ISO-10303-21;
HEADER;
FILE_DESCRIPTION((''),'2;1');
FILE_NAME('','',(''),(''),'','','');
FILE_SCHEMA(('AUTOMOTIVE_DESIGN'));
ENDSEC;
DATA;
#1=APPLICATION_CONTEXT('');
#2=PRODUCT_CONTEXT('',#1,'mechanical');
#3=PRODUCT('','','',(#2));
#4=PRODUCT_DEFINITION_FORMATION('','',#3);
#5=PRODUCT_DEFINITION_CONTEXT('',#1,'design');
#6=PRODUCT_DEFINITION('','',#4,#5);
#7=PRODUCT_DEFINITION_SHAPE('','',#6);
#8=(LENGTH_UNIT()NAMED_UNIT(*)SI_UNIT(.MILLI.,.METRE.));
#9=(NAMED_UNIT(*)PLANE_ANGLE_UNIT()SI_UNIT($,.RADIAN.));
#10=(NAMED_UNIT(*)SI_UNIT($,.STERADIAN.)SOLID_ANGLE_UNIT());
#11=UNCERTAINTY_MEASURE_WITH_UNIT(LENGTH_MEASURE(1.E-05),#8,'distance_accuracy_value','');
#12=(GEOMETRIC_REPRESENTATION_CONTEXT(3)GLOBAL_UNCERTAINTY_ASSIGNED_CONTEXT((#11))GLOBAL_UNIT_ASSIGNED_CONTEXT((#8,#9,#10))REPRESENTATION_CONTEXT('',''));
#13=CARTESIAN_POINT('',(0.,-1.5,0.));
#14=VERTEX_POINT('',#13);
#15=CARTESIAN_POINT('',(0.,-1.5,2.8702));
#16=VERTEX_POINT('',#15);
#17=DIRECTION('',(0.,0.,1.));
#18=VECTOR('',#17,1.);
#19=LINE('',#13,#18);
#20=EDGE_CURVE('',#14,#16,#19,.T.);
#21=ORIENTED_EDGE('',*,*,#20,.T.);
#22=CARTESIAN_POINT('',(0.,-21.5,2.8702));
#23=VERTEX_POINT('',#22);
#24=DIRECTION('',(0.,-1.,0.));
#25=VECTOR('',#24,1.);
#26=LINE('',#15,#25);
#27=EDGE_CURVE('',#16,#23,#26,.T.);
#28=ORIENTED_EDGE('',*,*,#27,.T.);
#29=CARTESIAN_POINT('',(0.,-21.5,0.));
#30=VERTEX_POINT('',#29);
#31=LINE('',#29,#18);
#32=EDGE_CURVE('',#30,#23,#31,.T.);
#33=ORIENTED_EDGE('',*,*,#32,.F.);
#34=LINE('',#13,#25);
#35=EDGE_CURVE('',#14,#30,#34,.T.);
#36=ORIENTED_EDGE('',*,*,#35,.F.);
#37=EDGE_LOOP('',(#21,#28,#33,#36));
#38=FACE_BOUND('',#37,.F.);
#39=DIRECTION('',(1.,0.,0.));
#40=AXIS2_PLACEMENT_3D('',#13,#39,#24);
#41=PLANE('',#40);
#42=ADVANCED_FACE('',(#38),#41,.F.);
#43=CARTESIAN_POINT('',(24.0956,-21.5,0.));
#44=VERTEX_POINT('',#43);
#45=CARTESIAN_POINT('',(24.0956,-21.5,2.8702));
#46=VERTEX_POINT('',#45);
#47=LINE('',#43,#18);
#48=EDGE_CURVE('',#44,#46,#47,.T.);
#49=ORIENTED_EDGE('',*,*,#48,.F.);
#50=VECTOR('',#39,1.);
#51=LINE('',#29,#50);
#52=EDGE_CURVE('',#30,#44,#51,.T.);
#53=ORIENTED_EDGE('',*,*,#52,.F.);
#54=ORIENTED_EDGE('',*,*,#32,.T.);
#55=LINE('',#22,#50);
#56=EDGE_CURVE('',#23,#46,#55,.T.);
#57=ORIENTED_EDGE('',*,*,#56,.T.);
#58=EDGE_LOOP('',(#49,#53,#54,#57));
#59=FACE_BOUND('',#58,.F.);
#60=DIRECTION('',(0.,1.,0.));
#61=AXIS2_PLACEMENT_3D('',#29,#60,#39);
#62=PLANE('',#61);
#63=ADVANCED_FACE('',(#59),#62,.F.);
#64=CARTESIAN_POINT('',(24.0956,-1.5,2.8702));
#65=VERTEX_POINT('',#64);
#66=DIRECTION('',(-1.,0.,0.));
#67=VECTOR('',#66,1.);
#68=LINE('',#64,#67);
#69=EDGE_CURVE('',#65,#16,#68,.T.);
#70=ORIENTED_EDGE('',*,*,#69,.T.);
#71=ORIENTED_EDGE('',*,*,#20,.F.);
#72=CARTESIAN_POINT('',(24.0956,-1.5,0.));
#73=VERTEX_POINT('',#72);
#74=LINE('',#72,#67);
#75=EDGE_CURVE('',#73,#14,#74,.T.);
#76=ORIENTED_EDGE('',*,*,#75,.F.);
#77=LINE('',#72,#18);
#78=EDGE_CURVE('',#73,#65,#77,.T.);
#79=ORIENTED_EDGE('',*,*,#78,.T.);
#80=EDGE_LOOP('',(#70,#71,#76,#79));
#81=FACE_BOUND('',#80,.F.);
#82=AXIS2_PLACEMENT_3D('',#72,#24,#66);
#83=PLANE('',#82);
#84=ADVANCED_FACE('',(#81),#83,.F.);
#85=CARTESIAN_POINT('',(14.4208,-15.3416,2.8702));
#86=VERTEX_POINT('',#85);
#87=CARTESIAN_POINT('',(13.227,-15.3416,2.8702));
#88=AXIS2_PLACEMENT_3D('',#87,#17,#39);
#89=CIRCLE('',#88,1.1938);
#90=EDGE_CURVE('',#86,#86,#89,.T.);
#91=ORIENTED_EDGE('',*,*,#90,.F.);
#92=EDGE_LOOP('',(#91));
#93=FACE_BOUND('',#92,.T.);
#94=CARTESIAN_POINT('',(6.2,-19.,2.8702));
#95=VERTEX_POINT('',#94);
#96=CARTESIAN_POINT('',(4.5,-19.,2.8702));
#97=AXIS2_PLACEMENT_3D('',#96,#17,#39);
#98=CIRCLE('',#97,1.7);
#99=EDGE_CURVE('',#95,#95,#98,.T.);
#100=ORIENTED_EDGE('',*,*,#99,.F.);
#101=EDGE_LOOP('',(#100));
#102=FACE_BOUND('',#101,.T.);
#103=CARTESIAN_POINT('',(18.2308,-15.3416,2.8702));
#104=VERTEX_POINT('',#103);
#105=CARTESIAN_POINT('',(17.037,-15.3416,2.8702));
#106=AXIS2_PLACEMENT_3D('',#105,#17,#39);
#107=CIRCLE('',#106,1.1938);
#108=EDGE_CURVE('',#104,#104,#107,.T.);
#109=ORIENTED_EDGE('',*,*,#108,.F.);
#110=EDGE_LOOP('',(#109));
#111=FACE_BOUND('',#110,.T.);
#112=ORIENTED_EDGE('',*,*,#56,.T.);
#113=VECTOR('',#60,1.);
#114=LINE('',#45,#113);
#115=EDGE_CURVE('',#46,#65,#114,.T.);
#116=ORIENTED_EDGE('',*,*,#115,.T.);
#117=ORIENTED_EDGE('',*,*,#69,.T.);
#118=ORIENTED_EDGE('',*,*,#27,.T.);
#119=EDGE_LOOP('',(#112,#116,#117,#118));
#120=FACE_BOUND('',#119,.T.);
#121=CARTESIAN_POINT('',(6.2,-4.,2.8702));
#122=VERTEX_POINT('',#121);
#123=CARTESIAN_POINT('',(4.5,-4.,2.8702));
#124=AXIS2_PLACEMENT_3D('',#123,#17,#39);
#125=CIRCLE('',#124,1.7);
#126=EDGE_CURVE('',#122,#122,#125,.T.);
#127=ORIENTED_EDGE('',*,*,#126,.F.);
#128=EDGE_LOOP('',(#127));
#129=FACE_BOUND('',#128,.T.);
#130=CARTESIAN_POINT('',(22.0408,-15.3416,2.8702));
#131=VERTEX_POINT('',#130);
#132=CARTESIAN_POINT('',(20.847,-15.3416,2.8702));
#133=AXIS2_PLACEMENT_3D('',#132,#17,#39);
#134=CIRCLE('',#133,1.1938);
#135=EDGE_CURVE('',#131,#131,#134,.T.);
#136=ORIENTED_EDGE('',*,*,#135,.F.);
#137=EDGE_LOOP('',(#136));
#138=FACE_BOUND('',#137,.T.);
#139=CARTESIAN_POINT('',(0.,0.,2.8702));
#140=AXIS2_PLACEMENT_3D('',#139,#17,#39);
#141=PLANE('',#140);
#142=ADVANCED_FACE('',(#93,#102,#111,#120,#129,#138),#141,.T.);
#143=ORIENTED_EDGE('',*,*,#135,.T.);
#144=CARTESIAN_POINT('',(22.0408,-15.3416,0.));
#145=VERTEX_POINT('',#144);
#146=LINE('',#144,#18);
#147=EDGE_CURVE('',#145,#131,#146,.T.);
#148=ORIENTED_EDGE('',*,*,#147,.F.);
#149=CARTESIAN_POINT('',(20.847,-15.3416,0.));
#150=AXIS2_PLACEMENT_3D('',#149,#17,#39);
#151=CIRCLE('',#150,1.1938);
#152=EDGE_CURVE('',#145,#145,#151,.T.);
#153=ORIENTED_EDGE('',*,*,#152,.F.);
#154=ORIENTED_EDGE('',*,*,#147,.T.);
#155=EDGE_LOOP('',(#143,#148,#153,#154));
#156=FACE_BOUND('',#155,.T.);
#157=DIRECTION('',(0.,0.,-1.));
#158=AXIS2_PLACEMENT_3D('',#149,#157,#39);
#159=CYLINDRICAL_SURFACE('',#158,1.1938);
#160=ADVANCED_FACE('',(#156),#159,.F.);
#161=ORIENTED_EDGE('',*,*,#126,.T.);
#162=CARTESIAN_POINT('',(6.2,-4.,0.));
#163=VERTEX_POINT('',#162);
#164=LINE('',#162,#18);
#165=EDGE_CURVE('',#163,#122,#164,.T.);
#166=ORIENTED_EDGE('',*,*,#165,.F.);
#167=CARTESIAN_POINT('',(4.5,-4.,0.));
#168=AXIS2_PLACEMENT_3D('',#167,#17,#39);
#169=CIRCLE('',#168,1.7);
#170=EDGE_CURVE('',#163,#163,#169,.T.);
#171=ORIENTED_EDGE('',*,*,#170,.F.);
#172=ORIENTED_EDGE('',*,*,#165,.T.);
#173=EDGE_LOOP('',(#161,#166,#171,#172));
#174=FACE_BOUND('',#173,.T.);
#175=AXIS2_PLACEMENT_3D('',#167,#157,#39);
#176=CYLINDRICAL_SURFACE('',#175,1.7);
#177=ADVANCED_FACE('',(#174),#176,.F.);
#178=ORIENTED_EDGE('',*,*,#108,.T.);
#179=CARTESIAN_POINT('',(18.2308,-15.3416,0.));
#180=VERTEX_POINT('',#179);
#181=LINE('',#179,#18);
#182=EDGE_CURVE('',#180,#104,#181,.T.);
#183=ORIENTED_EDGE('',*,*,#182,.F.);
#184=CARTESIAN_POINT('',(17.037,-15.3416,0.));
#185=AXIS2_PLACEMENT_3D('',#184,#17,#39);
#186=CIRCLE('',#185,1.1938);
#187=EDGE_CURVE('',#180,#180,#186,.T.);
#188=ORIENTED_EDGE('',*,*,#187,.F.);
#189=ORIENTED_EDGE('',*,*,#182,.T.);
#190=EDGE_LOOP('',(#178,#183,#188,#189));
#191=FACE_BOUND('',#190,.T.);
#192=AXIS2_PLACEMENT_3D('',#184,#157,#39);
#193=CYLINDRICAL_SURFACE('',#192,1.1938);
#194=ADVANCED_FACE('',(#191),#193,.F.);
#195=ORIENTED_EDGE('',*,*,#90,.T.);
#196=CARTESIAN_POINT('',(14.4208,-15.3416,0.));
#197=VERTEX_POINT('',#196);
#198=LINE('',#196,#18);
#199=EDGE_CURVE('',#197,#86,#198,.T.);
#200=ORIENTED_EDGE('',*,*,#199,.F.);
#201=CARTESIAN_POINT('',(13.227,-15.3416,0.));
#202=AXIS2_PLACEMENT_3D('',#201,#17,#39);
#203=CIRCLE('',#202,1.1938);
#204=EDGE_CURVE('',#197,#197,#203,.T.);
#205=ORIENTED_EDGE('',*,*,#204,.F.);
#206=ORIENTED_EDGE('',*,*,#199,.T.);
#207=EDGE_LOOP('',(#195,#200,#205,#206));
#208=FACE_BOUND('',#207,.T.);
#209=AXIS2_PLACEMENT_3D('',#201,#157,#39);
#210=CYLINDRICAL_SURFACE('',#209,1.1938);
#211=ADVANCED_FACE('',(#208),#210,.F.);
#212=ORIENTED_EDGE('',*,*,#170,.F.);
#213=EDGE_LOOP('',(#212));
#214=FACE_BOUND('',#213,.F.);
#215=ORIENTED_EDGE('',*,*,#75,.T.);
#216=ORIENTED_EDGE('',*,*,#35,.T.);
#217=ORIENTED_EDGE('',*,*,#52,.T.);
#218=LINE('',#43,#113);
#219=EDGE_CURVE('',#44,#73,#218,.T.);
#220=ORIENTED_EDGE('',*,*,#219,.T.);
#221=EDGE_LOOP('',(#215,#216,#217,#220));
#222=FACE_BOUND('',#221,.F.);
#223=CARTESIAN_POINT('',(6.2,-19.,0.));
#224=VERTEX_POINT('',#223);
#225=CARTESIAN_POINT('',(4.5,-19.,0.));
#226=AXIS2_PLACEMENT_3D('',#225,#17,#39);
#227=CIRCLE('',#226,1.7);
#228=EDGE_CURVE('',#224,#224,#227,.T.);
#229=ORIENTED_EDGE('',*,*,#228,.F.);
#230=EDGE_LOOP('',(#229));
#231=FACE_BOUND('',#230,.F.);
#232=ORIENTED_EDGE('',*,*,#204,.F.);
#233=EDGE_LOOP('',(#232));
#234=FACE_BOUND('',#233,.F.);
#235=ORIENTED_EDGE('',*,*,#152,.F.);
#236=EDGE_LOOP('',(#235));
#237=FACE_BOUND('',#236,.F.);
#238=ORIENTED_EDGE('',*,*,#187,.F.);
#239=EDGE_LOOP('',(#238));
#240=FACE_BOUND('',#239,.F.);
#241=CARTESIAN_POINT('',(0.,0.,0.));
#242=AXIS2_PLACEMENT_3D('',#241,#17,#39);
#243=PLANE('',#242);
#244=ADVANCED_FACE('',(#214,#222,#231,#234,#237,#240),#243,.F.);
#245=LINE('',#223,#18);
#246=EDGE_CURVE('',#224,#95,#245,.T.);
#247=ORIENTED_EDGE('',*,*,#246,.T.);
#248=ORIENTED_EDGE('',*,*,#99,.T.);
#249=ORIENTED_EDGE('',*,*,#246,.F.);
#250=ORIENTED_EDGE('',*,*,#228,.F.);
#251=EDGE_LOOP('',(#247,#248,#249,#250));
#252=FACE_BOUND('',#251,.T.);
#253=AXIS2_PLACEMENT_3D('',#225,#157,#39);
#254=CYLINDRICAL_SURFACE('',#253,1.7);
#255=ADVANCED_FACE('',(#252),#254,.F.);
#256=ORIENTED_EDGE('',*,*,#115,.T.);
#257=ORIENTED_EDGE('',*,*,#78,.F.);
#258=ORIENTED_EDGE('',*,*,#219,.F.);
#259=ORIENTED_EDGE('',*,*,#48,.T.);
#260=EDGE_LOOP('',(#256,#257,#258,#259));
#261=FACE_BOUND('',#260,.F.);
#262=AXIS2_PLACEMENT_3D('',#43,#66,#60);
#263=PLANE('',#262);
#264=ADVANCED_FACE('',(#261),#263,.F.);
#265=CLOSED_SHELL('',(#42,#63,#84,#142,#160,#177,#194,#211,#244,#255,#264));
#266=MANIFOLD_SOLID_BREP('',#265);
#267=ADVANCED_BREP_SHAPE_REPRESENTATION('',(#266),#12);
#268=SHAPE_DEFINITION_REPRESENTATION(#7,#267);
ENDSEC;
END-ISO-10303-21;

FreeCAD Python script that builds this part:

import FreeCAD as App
import Part
import Sketcher
Q = App.Units.Quantity

doc = App.newDocument("Part")
body = doc.addObject("PartDesign::Body", "Body")

sketch1 = body.newObject("Sketcher::SketchObject", "Sketch")
sketch1.AttachmentSupport = (doc.getObject("XY_Plane"), [""])
sketch1.MapMode = "FlatFace"
sketch1.addGeometry([
    Part.LineSegment(App.Vector(0, -1.5, 0), App.Vector(0, -21.5, 0)),
    Part.LineSegment(App.Vector(0, -21.5, 0), App.Vector(24.0956, -21.5, 0)),
    Part.LineSegment(App.Vector(24.0956, -21.5, 0), App.Vector(24.0956, -1.5, 0)),
    Part.LineSegment(App.Vector(24.0956, -1.5, 0), App.Vector(0, -1.5, 0)),
    Part.Circle(App.Vector(4.5, -19, 0), App.Vector(0, 0, 1), 1.7),
    Part.Circle(App.Vector(13.227, -15.3416, 0), App.Vector(0, 0, 1), 1.1938),
    Part.Circle(App.Vector(17.037, -15.3416, 0), App.Vector(0, 0, 1), 1.1938),
    Part.Circle(App.Vector(20.847, -15.3416, 0), App.Vector(0, 0, 1), 1.1938),
    Part.Circle(App.Vector(4.5, -4, 0), App.Vector(0, 0, 1), 1.7),
], False)
sketch1.addConstraint([
    Sketcher.Constraint("Coincident", 0, 2, 1, 1),
    Sketcher.Constraint("Coincident", 1, 2, 2, 1),
    Sketcher.Constraint("Coincident", 2, 2, 3, 1),
    Sketcher.Constraint("Coincident", 3, 2, 0, 1),
    Sketcher.Constraint("Vertical", 0),
    Sketcher.Constraint("Horizontal", 1),
    Sketcher.Constraint("Vertical", 2),
    Sketcher.Constraint("Horizontal", 3),
    Sketcher.Constraint("Equal", 5, 6),
    Sketcher.Constraint("Equal", 6, 7),
    Sketcher.Constraint("Equal", 4, 8),
    Sketcher.Constraint("PointOnObject", 0, 2, -2),
    Sketcher.Constraint("Horizontal", 5, 3, 6, 3),
    Sketcher.Constraint("Horizontal", 6, 3, 7, 3),
    Sketcher.Constraint("Vertical", 4, 3, 8, 3),
    Sketcher.Constraint("Diameter", 4, 3.4),
    Sketcher.Constraint("DistanceX", 5, 3, 6, 3, Q("0.15 in")),
    Sketcher.Constraint("DistanceX", 6, 3, 7, 3, Q("0.15 in")),
    Sketcher.Constraint("Diameter", 5, Q("0.094 in")),
    Sketcher.Constraint("DistanceY", 0, 2, 4, 3, 2.5),
    Sketcher.Constraint("DistanceY", 8, 3, 2, 2, 2.5),
    Sketcher.Constraint("DistanceY", 0, 2, 0, 1, Q("0.7874 in")),
    Sketcher.Constraint("DistanceY", 5, 3, -1, 1, Q("0.604 in")),
    Sketcher.Constraint("DistanceX", 1, 1, 1, 2, 24.0956),
    Sketcher.Constraint("DistanceX", 7, 3, 1, 2, Q("0.1279 in")),
    Sketcher.Constraint("DistanceX", -1, 1, 4, 3, 4.5),
    Sketcher.Constraint("DistanceY", 4, 3, -1, 1, 19.0),
])
pad1 = body.newObject("PartDesign::Pad", "Pad")
pad1.Profile = sketch1
pad1.Length = Q("0.113 in")

doc.recompute()
